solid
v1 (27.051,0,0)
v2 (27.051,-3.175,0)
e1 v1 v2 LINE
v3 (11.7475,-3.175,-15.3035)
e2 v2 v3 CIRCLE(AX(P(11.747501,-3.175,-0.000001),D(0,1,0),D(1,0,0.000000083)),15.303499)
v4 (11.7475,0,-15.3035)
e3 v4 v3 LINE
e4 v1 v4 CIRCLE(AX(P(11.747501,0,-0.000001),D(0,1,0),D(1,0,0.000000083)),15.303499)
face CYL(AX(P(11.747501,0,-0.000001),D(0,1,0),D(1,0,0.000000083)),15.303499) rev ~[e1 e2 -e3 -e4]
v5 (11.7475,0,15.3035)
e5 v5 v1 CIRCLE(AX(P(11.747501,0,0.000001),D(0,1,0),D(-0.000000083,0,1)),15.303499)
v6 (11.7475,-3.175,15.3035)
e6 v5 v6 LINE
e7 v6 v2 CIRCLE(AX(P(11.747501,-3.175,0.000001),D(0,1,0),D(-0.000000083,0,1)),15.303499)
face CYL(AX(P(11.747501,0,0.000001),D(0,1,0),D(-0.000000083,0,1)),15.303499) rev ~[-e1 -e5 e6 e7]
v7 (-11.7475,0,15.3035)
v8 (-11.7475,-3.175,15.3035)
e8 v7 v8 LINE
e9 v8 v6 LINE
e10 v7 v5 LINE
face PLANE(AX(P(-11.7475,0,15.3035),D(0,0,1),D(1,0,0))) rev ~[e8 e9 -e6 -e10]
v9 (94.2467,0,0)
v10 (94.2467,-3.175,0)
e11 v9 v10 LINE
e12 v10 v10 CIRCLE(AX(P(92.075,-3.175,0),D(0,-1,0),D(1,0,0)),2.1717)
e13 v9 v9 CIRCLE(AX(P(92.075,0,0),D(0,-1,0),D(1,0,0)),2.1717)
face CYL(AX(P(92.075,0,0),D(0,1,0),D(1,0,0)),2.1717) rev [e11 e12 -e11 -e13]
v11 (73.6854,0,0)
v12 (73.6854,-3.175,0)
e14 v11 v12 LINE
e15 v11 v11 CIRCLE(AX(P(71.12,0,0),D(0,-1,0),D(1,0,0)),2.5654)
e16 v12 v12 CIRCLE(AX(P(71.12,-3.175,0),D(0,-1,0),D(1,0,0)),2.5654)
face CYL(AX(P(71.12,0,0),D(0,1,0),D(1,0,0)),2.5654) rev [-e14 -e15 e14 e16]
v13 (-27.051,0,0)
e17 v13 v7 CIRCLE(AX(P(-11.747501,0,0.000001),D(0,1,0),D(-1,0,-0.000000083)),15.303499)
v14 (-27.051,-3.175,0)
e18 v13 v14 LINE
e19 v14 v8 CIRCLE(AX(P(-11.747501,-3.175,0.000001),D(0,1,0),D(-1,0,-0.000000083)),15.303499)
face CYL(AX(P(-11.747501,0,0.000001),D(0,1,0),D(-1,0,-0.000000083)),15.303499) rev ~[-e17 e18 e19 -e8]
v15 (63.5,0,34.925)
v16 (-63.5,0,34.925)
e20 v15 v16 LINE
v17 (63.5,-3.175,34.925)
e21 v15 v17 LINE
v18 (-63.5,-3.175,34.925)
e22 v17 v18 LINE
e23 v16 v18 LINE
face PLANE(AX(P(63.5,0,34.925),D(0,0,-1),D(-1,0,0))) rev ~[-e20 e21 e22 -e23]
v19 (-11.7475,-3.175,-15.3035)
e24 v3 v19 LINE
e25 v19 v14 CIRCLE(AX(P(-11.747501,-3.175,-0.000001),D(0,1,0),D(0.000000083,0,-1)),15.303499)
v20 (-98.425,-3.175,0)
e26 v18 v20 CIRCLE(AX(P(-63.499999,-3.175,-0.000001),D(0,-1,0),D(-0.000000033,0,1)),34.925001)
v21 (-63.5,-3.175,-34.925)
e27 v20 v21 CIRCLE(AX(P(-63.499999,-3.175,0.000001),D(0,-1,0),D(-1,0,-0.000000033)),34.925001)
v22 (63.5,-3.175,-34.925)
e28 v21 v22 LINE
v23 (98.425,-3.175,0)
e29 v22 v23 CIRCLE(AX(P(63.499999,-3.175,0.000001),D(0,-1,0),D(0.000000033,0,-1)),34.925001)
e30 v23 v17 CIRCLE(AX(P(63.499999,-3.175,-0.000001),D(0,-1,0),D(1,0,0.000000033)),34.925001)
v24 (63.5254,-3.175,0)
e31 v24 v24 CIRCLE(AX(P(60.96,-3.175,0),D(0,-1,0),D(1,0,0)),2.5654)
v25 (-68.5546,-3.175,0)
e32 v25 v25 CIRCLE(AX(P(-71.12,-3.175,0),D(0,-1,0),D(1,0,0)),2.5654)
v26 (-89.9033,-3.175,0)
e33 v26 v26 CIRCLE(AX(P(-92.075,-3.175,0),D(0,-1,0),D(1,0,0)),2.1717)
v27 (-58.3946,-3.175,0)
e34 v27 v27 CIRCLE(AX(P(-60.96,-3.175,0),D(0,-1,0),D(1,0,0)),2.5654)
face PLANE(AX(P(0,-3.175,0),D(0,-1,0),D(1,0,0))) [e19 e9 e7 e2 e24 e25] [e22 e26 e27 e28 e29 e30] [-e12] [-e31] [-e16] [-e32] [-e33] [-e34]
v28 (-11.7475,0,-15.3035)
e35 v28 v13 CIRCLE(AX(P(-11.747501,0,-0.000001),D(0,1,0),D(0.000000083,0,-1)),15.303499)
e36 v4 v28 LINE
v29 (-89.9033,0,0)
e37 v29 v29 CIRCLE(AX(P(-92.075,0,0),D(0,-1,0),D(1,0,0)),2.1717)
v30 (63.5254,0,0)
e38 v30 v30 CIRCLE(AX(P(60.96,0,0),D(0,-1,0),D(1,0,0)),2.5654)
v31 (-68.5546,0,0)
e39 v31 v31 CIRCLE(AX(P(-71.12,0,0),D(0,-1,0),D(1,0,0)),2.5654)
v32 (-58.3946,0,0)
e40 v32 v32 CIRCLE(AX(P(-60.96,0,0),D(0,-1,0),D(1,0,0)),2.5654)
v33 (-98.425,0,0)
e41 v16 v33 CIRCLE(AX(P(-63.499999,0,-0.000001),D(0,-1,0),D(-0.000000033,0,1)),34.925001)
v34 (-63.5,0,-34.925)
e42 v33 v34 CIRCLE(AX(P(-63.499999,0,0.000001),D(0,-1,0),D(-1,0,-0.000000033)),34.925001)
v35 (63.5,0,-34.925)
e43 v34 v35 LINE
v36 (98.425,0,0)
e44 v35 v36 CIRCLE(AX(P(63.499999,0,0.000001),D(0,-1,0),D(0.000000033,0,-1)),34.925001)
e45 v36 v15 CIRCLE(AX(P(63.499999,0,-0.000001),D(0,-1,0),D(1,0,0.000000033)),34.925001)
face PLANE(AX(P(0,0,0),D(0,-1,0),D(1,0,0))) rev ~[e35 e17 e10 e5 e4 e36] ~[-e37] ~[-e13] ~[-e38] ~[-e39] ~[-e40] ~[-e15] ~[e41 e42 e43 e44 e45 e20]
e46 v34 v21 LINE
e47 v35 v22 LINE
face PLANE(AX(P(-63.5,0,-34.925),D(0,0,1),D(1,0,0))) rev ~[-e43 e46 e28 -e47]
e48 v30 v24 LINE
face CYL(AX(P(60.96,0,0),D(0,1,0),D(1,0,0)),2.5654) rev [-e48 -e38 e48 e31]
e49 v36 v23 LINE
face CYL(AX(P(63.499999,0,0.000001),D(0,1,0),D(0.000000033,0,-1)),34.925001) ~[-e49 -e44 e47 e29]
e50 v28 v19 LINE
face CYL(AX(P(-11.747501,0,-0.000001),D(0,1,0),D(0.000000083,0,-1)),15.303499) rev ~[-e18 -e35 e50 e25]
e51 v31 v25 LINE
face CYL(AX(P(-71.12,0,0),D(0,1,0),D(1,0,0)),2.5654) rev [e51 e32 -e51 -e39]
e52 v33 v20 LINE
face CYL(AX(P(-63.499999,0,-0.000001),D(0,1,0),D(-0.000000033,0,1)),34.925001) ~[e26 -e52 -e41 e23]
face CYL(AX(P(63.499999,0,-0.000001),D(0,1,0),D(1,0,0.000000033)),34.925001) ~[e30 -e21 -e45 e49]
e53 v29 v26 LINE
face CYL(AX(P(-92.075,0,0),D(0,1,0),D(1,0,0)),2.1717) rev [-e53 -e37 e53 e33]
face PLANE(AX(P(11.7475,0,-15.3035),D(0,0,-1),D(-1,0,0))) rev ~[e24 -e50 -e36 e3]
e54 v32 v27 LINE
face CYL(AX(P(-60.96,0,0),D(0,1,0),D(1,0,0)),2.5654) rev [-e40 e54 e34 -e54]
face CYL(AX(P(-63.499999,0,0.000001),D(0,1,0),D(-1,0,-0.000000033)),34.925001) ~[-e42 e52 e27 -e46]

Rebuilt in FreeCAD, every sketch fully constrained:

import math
import FreeCAD as App
import Part
import Sketcher
Q = App.Units.Quantity

doc = App.newDocument("Part")
body = doc.addObject("PartDesign::Body", "Body")

# Sketch on XZ plane
sketch1 = body.newObject("Sketcher::SketchObject", "Sketch")
sketch1.AttachmentSupport = (doc.getObject("XZ_Plane"), [""])
sketch1.MapMode = "FlatFace"
sketch1.addGeometry([
    Part.LineSegment(App.Vector(63.5, 34.9, 0), App.Vector(-63.5, 34.9, 0)),  # 0
    Part.ArcOfCircle(Part.Circle(App.Vector(-63.5, 0, 0), App.Vector(0, 0, 1), 34.9), math.radians(90), math.radians(180)),  # 1
    Part.ArcOfCircle(Part.Circle(App.Vector(-63.5, 0, 0), App.Vector(0, 0, 1), 34.9), math.radians(-180), math.radians(-90)),  # 2
    Part.LineSegment(App.Vector(-63.5, -34.9, 0), App.Vector(63.5, -34.9, 0)),  # 3
    Part.ArcOfCircle(Part.Circle(App.Vector(63.5, 0, 0), App.Vector(0, 0, 1), 34.9), math.radians(-90), math.radians(0)),  # 4
    Part.ArcOfCircle(Part.Circle(App.Vector(63.5, 0, 0), App.Vector(0, 0, 1), 34.9), math.radians(0), math.radians(90)),  # 5
    Part.Circle(App.Vector(-92.1, 0, 0), App.Vector(0, 0, 1), 2.2),  # 6
    Part.Circle(App.Vector(-71.1, 0, 0), App.Vector(0, 0, 1), 2.6),  # 7
    Part.Circle(App.Vector(-61, 0, 0), App.Vector(0, 0, 1), 2.6),  # 8
    Part.ArcOfCircle(Part.Circle(App.Vector(-11.7, 0, 0), App.Vector(0, 0, 1), 15.3), math.radians(180), math.radians(270)),  # 9
    Part.ArcOfCircle(Part.Circle(App.Vector(-11.7, 0, 0), App.Vector(0, 0, 1), 15.3), math.radians(90), math.radians(180)),  # 10
    Part.LineSegment(App.Vector(-11.7, 15.3, 0), App.Vector(11.7, 15.3, 0)),  # 11
    Part.ArcOfCircle(Part.Circle(App.Vector(11.7, 0, 0), App.Vector(0, 0, 1), 15.3), math.radians(0), math.radians(90)),  # 12
    Part.ArcOfCircle(Part.Circle(App.Vector(11.7, 0, 0), App.Vector(0, 0, 1), 15.3), math.radians(-90), math.radians(0)),  # 13
    Part.LineSegment(App.Vector(11.7, -15.3, 0), App.Vector(-11.7, -15.3, 0)),  # 14
    Part.Circle(App.Vector(61, 0, 0), App.Vector(0, 0, 1), 2.6),  # 15
    Part.Circle(App.Vector(71.1, 0, 0), App.Vector(0, 0, 1), 2.6),  # 16
    Part.Circle(App.Vector(92.1, 0, 0), App.Vector(0, 0, 1), 2.2),  # 17
], False)
sketch1.addConstraint([
    Sketcher.Constraint("Tangent", 0, 2, 1, 1),
    Sketcher.Constraint("Tangent", 1, 2, 2, 1),
    Sketcher.Constraint("Tangent", 2, 2, 3, 1),
    Sketcher.Constraint("Tangent", 3, 2, 4, 1),
    Sketcher.Constraint("Tangent", 4, 2, 5, 1),
    Sketcher.Constraint("Tangent", 5, 2, 0, 1),
    Sketcher.Constraint("Tangent", 9, 1, 10, 2),
    Sketcher.Constraint("Tangent", 10, 1, 11, 1),
    Sketcher.Constraint("Tangent", 11, 2, 12, 2),
    Sketcher.Constraint("Tangent", 12, 1, 13, 2),
    Sketcher.Constraint("Tangent", 13, 1, 14, 1),
    Sketcher.Constraint("Tangent", 14, 2, 9, 2),
    Sketcher.Constraint("Horizontal", 0),
    Sketcher.Constraint("Horizontal", 3),
    Sketcher.Constraint("Horizontal", 11),
    Sketcher.Constraint("Horizontal", 14),
    Sketcher.Constraint("Equal", 1, 2),
    Sketcher.Constraint("Equal", 2, 4),
    Sketcher.Constraint("Equal", 7, 8),
    Sketcher.Constraint("Equal", 9, 10),
    Sketcher.Constraint("Equal", 10, 12),
    Sketcher.Constraint("Equal", 8, 15),
    Sketcher.Constraint("Equal", 15, 16),
    Sketcher.Constraint("Equal", 6, 17),
    Sketcher.Constraint("Symmetric", 1, 3, 4, 3, -1, 1),
    Sketcher.Constraint("Symmetric", 9, 3, 12, 3, -1, 1),
    Sketcher.Constraint("Symmetric", 8, 3, 15, 3, -1, 1),
    Sketcher.Constraint("Symmetric", 7, 3, 16, 3, -1, 1),
    Sketcher.Constraint("Symmetric", 6, 3, 17, 3, -1, 1),
    Sketcher.Constraint("PointOnObject", 6, 3, -1),
    Sketcher.Constraint("PointOnObject", 7, 3, -1),
    Sketcher.Constraint("PointOnObject", 8, 3, -1),
    Sketcher.Constraint("PointOnObject", 1, 2, -1),
    Sketcher.Constraint("PointOnObject", 4, 2, -1),
    Sketcher.Constraint("PointOnObject", 9, 1, -1),
    Sketcher.Constraint("PointOnObject", 12, 1, -1),
    Sketcher.Constraint("DistanceX", 0, 2, 0, 1, Q("5 in")),
    Sketcher.Constraint("Diameter", 6, Q("0.171 in")),
    Sketcher.Constraint("Diameter", 7, Q("0.202 in")),
    Sketcher.Constraint("Radius", 1, Q("1.375 in")),
    Sketcher.Constraint("DistanceX", 7, 3, -1, 1, Q("2.8 in")),
    Sketcher.Constraint("DistanceX", 8, 3, -1, 1, Q("2.4 in")),
    Sketcher.Constraint("Radius", 9, Q("0.6024999 in")),
    Sketcher.Constraint("DistanceX", 11, 1, 11, 2, Q("0.925 in")),
    Sketcher.Constraint("DistanceX", 1, 2, 6, 3, Q("0.25 in")),
])
pad1 = body.newObject("PartDesign::Pad", "Pad")
pad1.Profile = sketch1
pad1.Length = Q("0.125 in")

doc.recompute()
